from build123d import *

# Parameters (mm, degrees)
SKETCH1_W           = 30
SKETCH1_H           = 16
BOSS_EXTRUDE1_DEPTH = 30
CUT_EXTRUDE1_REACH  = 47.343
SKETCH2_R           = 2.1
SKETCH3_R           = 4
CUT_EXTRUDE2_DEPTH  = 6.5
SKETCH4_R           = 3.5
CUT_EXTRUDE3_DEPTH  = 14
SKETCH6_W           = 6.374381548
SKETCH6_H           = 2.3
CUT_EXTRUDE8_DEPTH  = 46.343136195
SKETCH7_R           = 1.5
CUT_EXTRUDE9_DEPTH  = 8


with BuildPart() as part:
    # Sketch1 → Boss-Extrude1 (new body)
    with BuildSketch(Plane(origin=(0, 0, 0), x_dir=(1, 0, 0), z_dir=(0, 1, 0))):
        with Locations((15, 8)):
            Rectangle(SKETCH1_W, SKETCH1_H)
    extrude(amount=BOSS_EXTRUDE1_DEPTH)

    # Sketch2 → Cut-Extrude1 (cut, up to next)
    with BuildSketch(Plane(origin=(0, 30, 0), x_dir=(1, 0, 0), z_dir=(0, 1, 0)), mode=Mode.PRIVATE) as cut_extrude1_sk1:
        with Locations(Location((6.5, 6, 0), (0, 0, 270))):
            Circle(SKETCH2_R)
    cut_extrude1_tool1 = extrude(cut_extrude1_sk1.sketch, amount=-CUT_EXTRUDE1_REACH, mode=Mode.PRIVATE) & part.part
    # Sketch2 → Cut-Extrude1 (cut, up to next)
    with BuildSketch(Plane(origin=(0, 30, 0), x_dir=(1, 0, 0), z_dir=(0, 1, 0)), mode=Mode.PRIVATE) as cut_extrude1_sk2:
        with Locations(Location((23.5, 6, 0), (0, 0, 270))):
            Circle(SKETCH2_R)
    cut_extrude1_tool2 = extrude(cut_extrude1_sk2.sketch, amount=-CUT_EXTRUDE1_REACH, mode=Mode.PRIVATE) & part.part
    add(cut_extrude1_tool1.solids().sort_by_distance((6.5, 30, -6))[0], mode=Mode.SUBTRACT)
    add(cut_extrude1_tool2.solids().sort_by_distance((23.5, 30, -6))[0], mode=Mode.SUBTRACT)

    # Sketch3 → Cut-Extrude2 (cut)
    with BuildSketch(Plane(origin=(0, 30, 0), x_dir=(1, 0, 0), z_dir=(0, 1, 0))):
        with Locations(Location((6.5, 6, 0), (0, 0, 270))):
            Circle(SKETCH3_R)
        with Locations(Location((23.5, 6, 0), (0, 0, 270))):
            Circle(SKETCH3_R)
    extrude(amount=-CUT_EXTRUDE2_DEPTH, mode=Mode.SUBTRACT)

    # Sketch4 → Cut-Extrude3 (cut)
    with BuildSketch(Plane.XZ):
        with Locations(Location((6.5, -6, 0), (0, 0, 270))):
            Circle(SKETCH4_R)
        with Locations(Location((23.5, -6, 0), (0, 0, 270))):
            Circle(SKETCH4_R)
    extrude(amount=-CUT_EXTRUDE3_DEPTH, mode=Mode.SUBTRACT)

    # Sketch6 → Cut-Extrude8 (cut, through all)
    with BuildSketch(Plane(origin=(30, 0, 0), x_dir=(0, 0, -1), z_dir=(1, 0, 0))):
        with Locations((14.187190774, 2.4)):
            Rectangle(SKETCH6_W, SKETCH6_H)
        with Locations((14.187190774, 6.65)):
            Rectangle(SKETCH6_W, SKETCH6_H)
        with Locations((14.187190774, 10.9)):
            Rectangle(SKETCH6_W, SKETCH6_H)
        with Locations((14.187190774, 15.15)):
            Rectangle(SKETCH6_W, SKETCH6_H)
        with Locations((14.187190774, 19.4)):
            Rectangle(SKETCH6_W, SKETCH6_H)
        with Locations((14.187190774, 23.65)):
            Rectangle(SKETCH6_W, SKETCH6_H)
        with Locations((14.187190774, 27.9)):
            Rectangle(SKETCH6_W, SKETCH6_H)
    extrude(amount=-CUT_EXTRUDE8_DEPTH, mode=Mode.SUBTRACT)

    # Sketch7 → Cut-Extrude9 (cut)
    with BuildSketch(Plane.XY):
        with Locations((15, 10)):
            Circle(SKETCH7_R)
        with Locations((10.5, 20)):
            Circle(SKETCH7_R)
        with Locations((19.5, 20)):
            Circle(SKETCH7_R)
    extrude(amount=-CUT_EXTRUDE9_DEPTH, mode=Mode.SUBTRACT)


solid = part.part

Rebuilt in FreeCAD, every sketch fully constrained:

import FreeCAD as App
import Part
import Sketcher

V = App.Vector


def add_polygon(sketch, points):
    """Adds a closed chain of lines whose ends are joined by coincident constraints."""
    first, n = sketch.GeometryCount, len(points)
    for a, b in zip(points, points[1:] + points[:1]):
        sketch.addGeometry(Part.LineSegment(App.Vector(*a, 0), App.Vector(*b, 0)), False)
    for i in range(n):
        sketch.addConstraint(Sketcher.Constraint("Coincident", first + i, 2, first + (i + 1) % n, 1))

doc = App.newDocument("Part")
body = doc.addObject("PartDesign::Body", "Body")

# Sketch on XZ plane
sketch1 = body.newObject("Sketcher::SketchObject", "Sketch")
sketch1.AttachmentSupport = (doc.getObject("XZ_Plane"), [""])
sketch1.MapMode = "FlatFace"
add_polygon(sketch1, [(0, -16), (0, 0), (30, 0), (30, -16)])  # lines 0-3
sketch1.addConstraint([
    Sketcher.Constraint("Vertical", 0),
    Sketcher.Constraint("Horizontal", 1),
    Sketcher.Constraint("Vertical", 2),
    Sketcher.Constraint("Horizontal", 3),
    Sketcher.Constraint("Coincident", 0, 2, -1, 1),
    Sketcher.Constraint("DistanceX", 1, 1, 1, 2, 30.0),
    Sketcher.Constraint("DistanceY", 0, 1, 0, 2, 16.0),
])
pad1 = body.newObject("PartDesign::Pad", "Pad")
pad1.Profile = sketch1
pad1.Length = 30
pad1.Reversed = True

# Sketch on XZ plane
sketch2 = body.newObject("Sketcher::SketchObject", "Sketch001")
sketch2.AttachmentSupport = (doc.getObject("XZ_Plane"), [""])
sketch2.MapMode = "FlatFace"
sketch2.AttachmentOffset = App.Placement(V(0, 0, -30), App.Rotation())
sketch2.addGeometry(Part.Circle(V(6.5, -6, 0), V(0, 0, 1), 2.1), False)
sketch2.addConstraint([
    Sketcher.Constraint("Diameter", 0, 4.2),
    Sketcher.Constraint("DistanceY", 0, 3, -1, 1, 6.0),
    Sketcher.Constraint("DistanceX", -1, 1, 0, 3, 6.5),
])
pocket1 = body.newObject("PartDesign::Pocket", "Pocket")
pocket1.Profile = sketch2
pocket1.Type = "UpToFirst"
pocket1.Reversed = True

# Sketch on XZ plane
sketch3 = body.newObject("Sketcher::SketchObject", "Sketch002")
sketch3.AttachmentSupport = (doc.getObject("XZ_Plane"), [""])
sketch3.MapMode = "FlatFace"
sketch3.AttachmentOffset = App.Placement(V(0, 0, -30), App.Rotation())
sketch3.addGeometry(Part.Circle(V(23.5, -6, 0), V(0, 0, 1), 2.1), False)
sketch3.addConstraint([
    Sketcher.Constraint("Diameter", 0, 4.2),
    Sketcher.Constraint("DistanceY", 0, 3, -1, 1, 6.0),
    Sketcher.Constraint("DistanceX", -1, 1, 0, 3, 23.5),
])
pocket2 = body.newObject("PartDesign::Pocket", "Pocket001")
pocket2.Profile = sketch3
pocket2.Type = "UpToFirst"
pocket2.Reversed = True

# Sketch on XZ plane
sketch4 = body.newObject("Sketcher::SketchObject", "Sketch003")
sketch4.AttachmentSupport = (doc.getObject("XZ_Plane"), [""])
sketch4.MapMode = "FlatFace"
sketch4.AttachmentOffset = App.Placement(V(0, 0, -30), App.Rotation())
sketch4.addGeometry([
    Part.Circle(V(6.5, -6, 0), V(0, 0, 1), 4),
    Part.Circle(V(23.5, -6, 0), V(0, 0, 1), 4),
], False)
sketch4.addConstraint([
    Sketcher.Constraint("Equal", 0, 1),
    Sketcher.Constraint("Horizontal", 0, 3, 1, 3),
    Sketcher.Constraint("Diameter", 0, 8.0),
    Sketcher.Constraint("DistanceY", 0, 3, -1, 1, 6.0),
    Sketcher.Constraint("DistanceX", 0, 3, 1, 3, 17.0),
    Sketcher.Constraint("DistanceX", -1, 1, 0, 3, 6.5),
])
pocket3 = body.newObject("PartDesign::Pocket", "Pocket002")
pocket3.Profile = sketch4
pocket3.Length = 6.5
pocket3.Reversed = True

# Sketch on XZ plane
sketch5 = body.newObject("Sketcher::SketchObject", "Sketch004")
sketch5.AttachmentSupport = (doc.getObject("XZ_Plane"), [""])
sketch5.MapMode = "FlatFace"
sketch5.addGeometry([
    Part.Circle(V(6.5, -6, 0), V(0, 0, 1), 3.5),
    Part.Circle(V(23.5, -6, 0), V(0, 0, 1), 3.5),
], False)
sketch5.addConstraint([
    Sketcher.Constraint("Equal", 0, 1),
    Sketcher.Constraint("Horizontal", 0, 3, 1, 3),
    Sketcher.Constraint("Diameter", 0, 7.0),
    Sketcher.Constraint("DistanceY", 0, 3, -1, 1, 6.0),
    Sketcher.Constraint("DistanceX", 0, 3, 1, 3, 17.0),
    Sketcher.Constraint("DistanceX", -1, 1, 0, 3, 6.5),
])
pocket4 = body.newObject("PartDesign::Pocket", "Pocket003")
pocket4.Profile = sketch5
pocket4.Length = 14

# Sketch on YZ plane
sketch6 = body.newObject("Sketcher::SketchObject", "Sketch005")
sketch6.AttachmentSupport = (doc.getObject("YZ_Plane"), [""])
sketch6.MapMode = "FlatFace"
sketch6.AttachmentOffset = App.Placement(V(0, 0, 30), App.Rotation())
add_polygon(sketch6, [(3.55, -11), (1.25, -11), (1.25, -17.374382), (3.55, -17.374382)])  # lines 0-3
add_polygon(sketch6, [(7.8, -11), (5.5, -11), (5.5, -17.374382), (7.8, -17.374382)])  # lines 4-7
add_polygon(sketch6, [(12.05, -11), (9.75, -11), (9.75, -17.374382), (12.05, -17.374382)])  # lines 8-11
add_polygon(sketch6, [(16.3, -11), (14, -11), (14, -17.374382), (16.3, -17.374382)])  # lines 12-15
add_polygon(sketch6, [(20.55, -11), (18.25, -11), (18.25, -17.374382), (20.55, -17.374382)])  # lines 16-19
add_polygon(sketch6, [(24.8, -11), (22.5, -11), (22.5, -17.374382), (24.8, -17.374382)])  # lines 20-23
add_polygon(sketch6, [(29.05, -11), (26.75, -11), (26.75, -17.374382), (29.05, -17.374382)])  # lines 24-27
sketch6.addConstraint([
    Sketcher.Constraint("Horizontal", 0),
    Sketcher.Constraint("Vertical", 1),
    Sketcher.Constraint("Horizontal", 2),
    Sketcher.Constraint("Vertical", 3),
    Sketcher.Constraint("Horizontal", 4),
    Sketcher.Constraint("Vertical", 5),
    Sketcher.Constraint("Horizontal", 6),
    Sketcher.Constraint("Vertical", 7),
    Sketcher.Constraint("Horizontal", 8),
    Sketcher.Constraint("Vertical", 9),
    Sketcher.Constraint("Horizontal", 10),
    Sketcher.Constraint("Vertical", 11),
    Sketcher.Constraint("Horizontal", 12),
    Sketcher.Constraint("Vertical", 13),
    Sketcher.Constraint("Horizontal", 14),
    Sketcher.Constraint("Vertical", 15),
    Sketcher.Constraint("Horizontal", 16),
    Sketcher.Constraint("Vertical", 17),
    Sketcher.Constraint("Horizontal", 18),
    Sketcher.Constraint("Vertical", 19),
    Sketcher.Constraint("Horizontal", 20),
    Sketcher.Constraint("Vertical", 21),
    Sketcher.Constraint("Horizontal", 22),
    Sketcher.Constraint("Vertical", 23),
    Sketcher.Constraint("Horizontal", 24),
    Sketcher.Constraint("Vertical", 25),
    Sketcher.Constraint("Horizontal", 26),
    Sketcher.Constraint("Vertical", 27),
    Sketcher.Constraint("Horizontal", 3, 2, 4, 2),
    Sketcher.Constraint("Horizontal", 2, 2, 5, 2),
    Sketcher.Constraint("Horizontal", 7, 2, 8, 2),
    Sketcher.Constraint("Horizontal", 6, 2, 9, 2),
    Sketcher.Constraint("Horizontal", 11, 2, 12, 2),
    Sketcher.Constraint("Horizontal", 10, 2, 13, 2),
    Sketcher.Constraint("Horizontal", 15, 2, 16, 2),
    Sketcher.Constraint("Horizontal", 14, 2, 17, 2),
    Sketcher.Constraint("Horizontal", 19, 2, 20, 2),
    Sketcher.Constraint("Horizontal", 18, 2, 21, 2),
    Sketcher.Constraint("Horizontal", 23, 2, 24, 2),
    Sketcher.Constraint("Horizontal", 22, 2, 25, 2),
    Sketcher.Constraint("Equal", 2, 4),
    Sketcher.Constraint("Equal", 6, 8),
    Sketcher.Constraint("Equal", 10, 12),
    Sketcher.Constraint("Equal", 14, 16),
    Sketcher.Constraint("Equal", 18, 20),
    Sketcher.Constraint("Equal", 22, 24),
    Sketcher.Constraint("DistanceX", 0, 2, 0, 1, 2.3),
    Sketcher.Constraint("DistanceY", 0, 2, -1, 1, 11.0),
    Sketcher.Constraint("DistanceX", -1, 1, 12, 2, 14.0),
    Sketcher.Constraint("DistanceX", -1, 1, 4, 2, 5.5),
    Sketcher.Constraint("DistanceX", -1, 1, 20, 2, 22.5),
    Sketcher.Constraint("DistanceX", 3, 2, 8, 2, 6.2),
    Sketcher.Constraint("DistanceX", 11, 2, 16, 2, 6.2),
    Sketcher.Constraint("DistanceX", 19, 2, 24, 2, 6.2),
    Sketcher.Constraint("DistanceX", -1, 1, 0, 2, 1.25),
    Sketcher.Constraint("DistanceY", 1, 2, 1, 1, 6.374382),
])
pocket5 = body.newObject("PartDesign::Pocket", "Pocket004")
pocket5.Profile = sketch6
pocket5.Type = "ThroughAll"

# Sketch on XY plane
sketch7 = body.newObject("Sketcher::SketchObject", "Sketch006")
sketch7.AttachmentSupport = (doc.getObject("XY_Plane"), [""])
sketch7.MapMode = "FlatFace"
sketch7.addGeometry([
    Part.Circle(V(15, 10, 0), V(0, 0, 1), 1.5),
    Part.Circle(V(10.5, 20, 0), V(0, 0, 1), 1.5),
    Part.Circle(V(19.5, 20, 0), V(0, 0, 1), 1.5),
], False)
sketch7.addConstraint([
    Sketcher.Constraint("Equal", 0, 1),
    Sketcher.Constraint("Equal", 1, 2),
    Sketcher.Constraint("Horizontal", 1, 3, 2, 3),
    Sketcher.Constraint("Diameter", 0, 3.0),
    Sketcher.Constraint("DistanceX", -1, 1, 0, 3, 15.0),
    Sketcher.Constraint("DistanceY", -1, 1, 0, 3, 10.0),
    Sketcher.Constraint("DistanceY", -1, 1, 1, 3, 20.0),
    Sketcher.Constraint("DistanceX", 1, 3, 2, 3, 9.0),
    Sketcher.Constraint("DistanceX", -1, 1, 1, 3, 10.5),
])
pocket6 = body.newObject("PartDesign::Pocket", "Pocket005")
pocket6.Profile = sketch7
pocket6.Length = 8

doc.recompute()
